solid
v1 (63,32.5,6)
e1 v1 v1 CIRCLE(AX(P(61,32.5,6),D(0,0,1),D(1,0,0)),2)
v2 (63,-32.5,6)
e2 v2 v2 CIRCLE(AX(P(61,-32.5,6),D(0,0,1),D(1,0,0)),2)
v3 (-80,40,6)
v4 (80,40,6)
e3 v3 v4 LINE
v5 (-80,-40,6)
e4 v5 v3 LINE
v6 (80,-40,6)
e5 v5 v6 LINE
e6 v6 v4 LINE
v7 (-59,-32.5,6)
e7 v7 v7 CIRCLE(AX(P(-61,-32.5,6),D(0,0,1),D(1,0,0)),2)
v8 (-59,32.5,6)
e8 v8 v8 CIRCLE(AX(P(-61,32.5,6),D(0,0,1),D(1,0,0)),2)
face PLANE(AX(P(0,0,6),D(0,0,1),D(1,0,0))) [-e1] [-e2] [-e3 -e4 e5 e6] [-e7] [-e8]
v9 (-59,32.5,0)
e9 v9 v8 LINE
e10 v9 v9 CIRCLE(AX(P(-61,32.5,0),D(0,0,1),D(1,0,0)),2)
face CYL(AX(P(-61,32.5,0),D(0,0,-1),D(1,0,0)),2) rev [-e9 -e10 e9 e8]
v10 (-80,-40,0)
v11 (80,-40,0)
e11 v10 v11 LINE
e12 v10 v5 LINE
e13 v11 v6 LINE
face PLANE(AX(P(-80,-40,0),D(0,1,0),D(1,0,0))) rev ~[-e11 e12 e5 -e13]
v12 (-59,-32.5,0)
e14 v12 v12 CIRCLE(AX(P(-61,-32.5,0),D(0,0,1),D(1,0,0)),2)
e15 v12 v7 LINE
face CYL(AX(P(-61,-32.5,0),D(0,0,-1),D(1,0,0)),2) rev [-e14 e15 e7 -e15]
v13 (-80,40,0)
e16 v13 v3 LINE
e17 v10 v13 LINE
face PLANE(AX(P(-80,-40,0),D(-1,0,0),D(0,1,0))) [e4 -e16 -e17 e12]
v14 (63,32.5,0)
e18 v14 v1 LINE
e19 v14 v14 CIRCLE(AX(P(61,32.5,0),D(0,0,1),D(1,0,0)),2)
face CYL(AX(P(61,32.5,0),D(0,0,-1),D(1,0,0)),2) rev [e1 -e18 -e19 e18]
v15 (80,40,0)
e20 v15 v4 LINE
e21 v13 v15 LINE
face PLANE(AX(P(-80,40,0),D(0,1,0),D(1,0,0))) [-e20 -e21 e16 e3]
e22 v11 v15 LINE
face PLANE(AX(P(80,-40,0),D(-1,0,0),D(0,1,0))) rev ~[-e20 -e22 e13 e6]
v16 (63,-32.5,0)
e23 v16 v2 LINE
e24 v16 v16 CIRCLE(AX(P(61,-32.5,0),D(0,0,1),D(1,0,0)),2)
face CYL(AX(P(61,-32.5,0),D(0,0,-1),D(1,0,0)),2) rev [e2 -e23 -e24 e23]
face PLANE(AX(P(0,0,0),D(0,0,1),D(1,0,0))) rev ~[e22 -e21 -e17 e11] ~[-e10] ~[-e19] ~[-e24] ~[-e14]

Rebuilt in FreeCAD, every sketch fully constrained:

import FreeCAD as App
import Part
import Sketcher
Q = App.Units.Quantity


def add_polygon(sketch, points):
    """Adds a closed chain of lines whose ends are joined by coincident constraints."""
    first, n = sketch.GeometryCount, len(points)
    for a, b in zip(points, points[1:] + points[:1]):
        sketch.addGeometry(Part.LineSegment(App.Vector(*a, 0), App.Vector(*b, 0)), False)
    for i in range(n):
        sketch.addConstraint(Sketcher.Constraint("Coincident", first + i, 2, first + (i + 1) % n, 1))

doc = App.newDocument("Part")
body = doc.addObject("PartDesign::Body", "Body")

# Sketch on XY plane
sketch1 = body.newObject("Sketcher::SketchObject", "Sketch")
sketch1.AttachmentSupport = (doc.getObject("XY_Plane"), [""])
sketch1.MapMode = "FlatFace"
add_polygon(sketch1, [(-80, 40), (-80, -40), (80, -40), (80, 40)])  # lines 0-3
sketch1.addGeometry(Part.Circle(App.Vector(-61, -32.5, 0), App.Vector(0, 0, 1), 2), False)  # 4
sketch1.addGeometry(Part.Circle(App.Vector(61, -32.5, 0), App.Vector(0, 0, 1), 2), False)  # 5
sketch1.addGeometry(Part.Circle(App.Vector(-61, 32.5, 0), App.Vector(0, 0, 1), 2), False)  # 6
sketch1.addGeometry(Part.Circle(App.Vector(61, 32.5, 0), App.Vector(0, 0, 1), 2), False)  # 7
sketch1.addConstraint([
    Sketcher.Constraint("Vertical", 0),
    Sketcher.Constraint("Horizontal", 1),
    Sketcher.Constraint("Vertical", 2),
    Sketcher.Constraint("Horizontal", 3),
    Sketcher.Constraint("Equal", 4, 5),
    Sketcher.Constraint("Equal", 5, 6),
    Sketcher.Constraint("Equal", 6, 7),
    Sketcher.Constraint("Symmetric", 5, 3, 6, 3, -1, 1),
    Sketcher.Constraint("Symmetric", 4, 3, 7, 3, -1, 1),
    Sketcher.Constraint("Symmetric", 0, 2, 2, 2, -1, 1),
    Sketcher.Constraint("Symmetric", 4, 3, 5, 3, -2),
    Sketcher.Constraint("Diameter", 4, Q("4 mm")),
    Sketcher.Constraint("DistanceX", 1, 1, 1, 2, Q("160 mm")),
    Sketcher.Constraint("DistanceY", 0, 2, 0, 1, Q("80 mm")),
    Sketcher.Constraint("DistanceX", 4, 3, -1, 1, Q("61 mm")),
    Sketcher.Constraint("DistanceY", 4, 3, 6, 3, Q("65 mm")),
])
pad1 = body.newObject("PartDesign::Pad", "Pad")
pad1.Profile = sketch1
pad1.Length = 6

doc.recompute()
